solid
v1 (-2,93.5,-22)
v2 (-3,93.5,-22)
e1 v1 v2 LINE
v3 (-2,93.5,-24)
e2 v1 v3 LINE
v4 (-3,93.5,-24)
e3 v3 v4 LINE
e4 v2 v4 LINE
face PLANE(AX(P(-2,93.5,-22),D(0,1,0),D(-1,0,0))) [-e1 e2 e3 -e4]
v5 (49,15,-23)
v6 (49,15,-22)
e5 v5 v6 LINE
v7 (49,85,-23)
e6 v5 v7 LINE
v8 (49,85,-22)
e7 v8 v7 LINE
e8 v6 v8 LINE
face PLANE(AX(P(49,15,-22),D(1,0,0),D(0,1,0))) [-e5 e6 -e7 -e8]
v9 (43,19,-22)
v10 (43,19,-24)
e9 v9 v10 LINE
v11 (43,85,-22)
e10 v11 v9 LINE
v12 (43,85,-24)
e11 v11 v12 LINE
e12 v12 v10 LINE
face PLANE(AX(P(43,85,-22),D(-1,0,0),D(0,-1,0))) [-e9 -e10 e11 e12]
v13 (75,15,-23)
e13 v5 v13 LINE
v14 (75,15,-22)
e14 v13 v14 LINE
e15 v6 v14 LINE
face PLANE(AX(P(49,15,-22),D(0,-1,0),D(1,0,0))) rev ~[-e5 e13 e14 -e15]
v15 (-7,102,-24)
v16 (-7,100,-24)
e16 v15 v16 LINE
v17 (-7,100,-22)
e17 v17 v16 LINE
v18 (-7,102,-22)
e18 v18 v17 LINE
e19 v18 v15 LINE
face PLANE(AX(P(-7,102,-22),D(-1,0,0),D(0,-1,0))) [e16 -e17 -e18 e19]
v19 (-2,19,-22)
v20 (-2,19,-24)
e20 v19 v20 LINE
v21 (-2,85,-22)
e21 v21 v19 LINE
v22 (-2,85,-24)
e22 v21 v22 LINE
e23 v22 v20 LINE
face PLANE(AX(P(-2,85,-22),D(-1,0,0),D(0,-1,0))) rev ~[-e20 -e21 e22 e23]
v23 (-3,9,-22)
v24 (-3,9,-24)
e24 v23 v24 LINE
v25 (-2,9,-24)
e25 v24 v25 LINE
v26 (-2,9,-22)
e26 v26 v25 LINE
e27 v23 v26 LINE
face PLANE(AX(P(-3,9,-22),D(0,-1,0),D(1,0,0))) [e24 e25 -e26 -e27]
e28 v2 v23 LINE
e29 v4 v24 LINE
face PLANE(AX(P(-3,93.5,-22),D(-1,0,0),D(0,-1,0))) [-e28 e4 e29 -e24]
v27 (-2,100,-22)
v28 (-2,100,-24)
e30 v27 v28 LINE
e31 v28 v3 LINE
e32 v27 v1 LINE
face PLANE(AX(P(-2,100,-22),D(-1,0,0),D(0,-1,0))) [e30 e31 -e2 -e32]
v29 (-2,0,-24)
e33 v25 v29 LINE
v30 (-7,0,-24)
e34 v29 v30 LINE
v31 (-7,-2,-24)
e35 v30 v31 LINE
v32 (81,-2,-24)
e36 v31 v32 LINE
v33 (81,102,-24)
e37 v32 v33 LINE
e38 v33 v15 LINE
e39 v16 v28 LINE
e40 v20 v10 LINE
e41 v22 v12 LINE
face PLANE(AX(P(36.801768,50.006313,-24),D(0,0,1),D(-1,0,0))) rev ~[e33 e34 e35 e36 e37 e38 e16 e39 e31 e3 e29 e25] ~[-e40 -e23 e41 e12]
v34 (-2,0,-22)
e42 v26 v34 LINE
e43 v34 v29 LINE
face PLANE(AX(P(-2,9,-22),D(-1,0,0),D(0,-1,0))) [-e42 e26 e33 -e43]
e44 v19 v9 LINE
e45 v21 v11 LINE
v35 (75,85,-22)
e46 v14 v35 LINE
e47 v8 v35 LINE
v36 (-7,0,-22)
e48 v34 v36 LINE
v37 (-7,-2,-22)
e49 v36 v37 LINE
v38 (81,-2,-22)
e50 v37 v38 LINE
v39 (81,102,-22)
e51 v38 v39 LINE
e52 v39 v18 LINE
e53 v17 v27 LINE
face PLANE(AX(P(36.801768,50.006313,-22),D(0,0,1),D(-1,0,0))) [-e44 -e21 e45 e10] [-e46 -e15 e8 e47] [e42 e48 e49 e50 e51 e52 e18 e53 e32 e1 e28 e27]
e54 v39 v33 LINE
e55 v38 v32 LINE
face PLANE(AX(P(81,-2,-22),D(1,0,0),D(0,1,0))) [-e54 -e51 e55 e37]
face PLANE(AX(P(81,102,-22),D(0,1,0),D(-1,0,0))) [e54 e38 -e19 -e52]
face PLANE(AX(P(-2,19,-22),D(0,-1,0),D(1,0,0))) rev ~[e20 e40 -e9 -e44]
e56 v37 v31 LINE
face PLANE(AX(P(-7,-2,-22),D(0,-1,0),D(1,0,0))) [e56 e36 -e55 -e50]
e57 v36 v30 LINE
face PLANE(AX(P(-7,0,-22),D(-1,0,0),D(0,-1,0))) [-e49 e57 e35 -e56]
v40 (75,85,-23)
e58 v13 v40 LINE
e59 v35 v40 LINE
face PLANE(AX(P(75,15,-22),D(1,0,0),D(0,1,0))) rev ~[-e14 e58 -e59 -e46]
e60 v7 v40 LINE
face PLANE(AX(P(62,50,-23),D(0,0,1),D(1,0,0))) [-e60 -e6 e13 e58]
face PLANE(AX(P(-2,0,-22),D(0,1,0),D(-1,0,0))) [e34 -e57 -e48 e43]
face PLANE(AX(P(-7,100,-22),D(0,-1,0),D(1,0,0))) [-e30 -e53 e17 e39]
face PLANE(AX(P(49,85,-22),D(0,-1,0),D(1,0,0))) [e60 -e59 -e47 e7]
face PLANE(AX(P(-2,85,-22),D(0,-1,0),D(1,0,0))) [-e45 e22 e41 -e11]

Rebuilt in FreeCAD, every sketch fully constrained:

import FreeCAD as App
import Part
import Sketcher
from FreeCAD import Vector


def add_polygon(sketch, points):
    """Adds a closed chain of lines whose ends are joined by coincident constraints."""
    first, n = sketch.GeometryCount, len(points)
    for a, b in zip(points, points[1:] + points[:1]):
        sketch.addGeometry(Part.LineSegment(App.Vector(*a, 0), App.Vector(*b, 0)), False)
    for i in range(n):
        sketch.addConstraint(Sketcher.Constraint("Coincident", first + i, 2, first + (i + 1) % n, 1))

doc = App.newDocument("Part")
params = doc.addObject("Spreadsheet::Sheet", "Params")
for row, (alias, value) in enumerate([
    ("sketch1_width", "26 mm"),
    ("sketch1_height", "70 mm"),
    ("pad1_length", "2 mm"),
    ("sketch2_width", "88 mm"),
    ("sketch2_width2", "5 mm"),
    ("sketch2_width3", "1 mm"),
    ("sketch2_width4", "45 mm"),
    ("sketch2_height", "2 mm"),
    ("pad2_length", "2 mm"),
], start=1):
    params.set(f"A{row}", alias)
    params.set(f"B{row}", "=" + value)
    params.setAlias(f"B{row}", alias)

body = doc.addObject("PartDesign::Body", "Body")

sketch1 = doc.addObject("Sketcher::SketchObject", "Sketch")
body.addObject(sketch1)
sketch1.AttachmentSupport = (doc.XY_Plane, [""])
sketch1.MapMode = "FlatFace"
sketch1.AttachmentOffset = App.Placement(Vector(0, 0, -22), App.Rotation())
add_polygon(sketch1, [(49, 85), (49, 15), (75, 15), (75, 85)])
sketch1.addConstraint(Sketcher.Constraint("Vertical", 0))
sketch1.addConstraint(Sketcher.Constraint("Horizontal", 1))
sketch1.addConstraint(Sketcher.Constraint("Vertical", 2))
sketch1.addConstraint(Sketcher.Constraint("Horizontal", 3))
sketch1.addConstraint(Sketcher.Constraint("DistanceX", 1, 1, 1, 2, 26.0))
sketch1.addConstraint(Sketcher.Constraint("DistanceY", 0, 2, 0, 1, 70.0))
sketch1.addConstraint(Sketcher.Constraint("DistanceX", -1, 1, 0, 2, 49.0))
sketch1.addConstraint(Sketcher.Constraint("DistanceY", -1, 1, 0, 2, 15.0))
sketch1.setExpression("Constraints[8]", "Params.sketch1_width")
sketch1.setExpression("Constraints[9]", "Params.sketch1_height")
pad1 = doc.addObject("PartDesign::Pad", "Pad")
body.addObject(pad1)
pad1.Profile = sketch1
pad1.setExpression("Length", "Params.pad1_length")
pad1.Midplane = True
body2 = doc.addObject("PartDesign::Body", "Body001")

sketch2 = doc.addObject("Sketcher::SketchObject", "Sketch001")
body2.addObject(sketch2)
sketch2.AttachmentSupport = (doc.getObject("XY_Plane001"), [""])
sketch2.MapMode = "FlatFace"
sketch2.AttachmentOffset = App.Placement(Vector(0, 0, -22), App.Rotation())
add_polygon(sketch2, [(81, -2), (-7, -2), (-7, 0), (-2, 0), (-2, 9), (-3, 9), (-3, 93.5), (-2, 93.5), (-2, 100), (-7, 100), (-7, 102), (81, 102)])
add_polygon(sketch2, [(-2, 85), (-2, 19), (43, 19), (43, 85)])
sketch2.addConstraint(Sketcher.Constraint("Horizontal", 0))
sketch2.addConstraint(Sketcher.Constraint("Vertical", 1))
sketch2.addConstraint(Sketcher.Constraint("Horizontal", 2))
sketch2.addConstraint(Sketcher.Constraint("Vertical", 3))
sketch2.addConstraint(Sketcher.Constraint("Horizontal", 4))
sketch2.addConstraint(Sketcher.Constraint("Vertical", 5))
sketch2.addConstraint(Sketcher.Constraint("Horizontal", 6))
sketch2.addConstraint(Sketcher.Constraint("Vertical", 7))
sketch2.addConstraint(Sketcher.Constraint("Horizontal", 8))
sketch2.addConstraint(Sketcher.Constraint("Vertical", 9))
sketch2.addConstraint(Sketcher.Constraint("Horizontal", 10))
sketch2.addConstraint(Sketcher.Constraint("Vertical", 11))
sketch2.addConstraint(Sketcher.Constraint("Vertical", 12))
sketch2.addConstraint(Sketcher.Constraint("Horizontal", 13))
sketch2.addConstraint(Sketcher.Constraint("Vertical", 14))
sketch2.addConstraint(Sketcher.Constraint("Horizontal", 15))
sketch2.addConstraint(Sketcher.Constraint("PointOnObject", 1, 2, -1))
sketch2.addConstraint(Sketcher.Constraint("Vertical", 3, 2, 6, 2))
sketch2.addConstraint(Sketcher.Constraint("Vertical", 1, 2, 8, 2))
sketch2.addConstraint(Sketcher.Constraint("Vertical", 7, 2, 12, 2))
sketch2.addConstraint(Sketcher.Constraint("Equal", 1, 9))
sketch2.addConstraint(Sketcher.Constraint("DistanceX", 0, 2, 0, 1, 88.0))
sketch2.addConstraint(Sketcher.Constraint("DistanceX", 2, 1, 2, 2, 5.0))
sketch2.addConstraint(Sketcher.Constraint("DistanceX", 4, 2, 4, 1, 1.0))
sketch2.addConstraint(Sketcher.Constraint("DistanceX", 13, 1, 13, 2, 45.0))
sketch2.addConstraint(Sketcher.Constraint("DistanceY", 1, 1, 1, 2, 2.0))
sketch2.addConstraint(Sketcher.Constraint("DistanceY", 3, 1, 3, 2, 9.0))
sketch2.addConstraint(Sketcher.Constraint("DistanceY", 11, 2, 11, 1, 104.0))
sketch2.addConstraint(Sketcher.Constraint("DistanceY", 12, 2, 12, 1, 66.0))
sketch2.addConstraint(Sketcher.Constraint("DistanceY", 5, 1, 5, 2, 84.5))
sketch2.addConstraint(Sketcher.Constraint("DistanceX", 0, 2, -1, 1, 7.0))
sketch2.addConstraint(Sketcher.Constraint("DistanceY", -1, 1, 12, 2, 19.0))
sketch2.setExpression("Constraints[37]", "Params.sketch2_width")
sketch2.setExpression("Constraints[38]", "Params.sketch2_width2")
sketch2.setExpression("Constraints[39]", "Params.sketch2_width3")
sketch2.setExpression("Constraints[40]", "Params.sketch2_width4")
sketch2.setExpression("Constraints[41]", "Params.sketch2_height")
pad2 = doc.addObject("PartDesign::Pad", "Pad001")
body2.addObject(pad2)
pad2.Profile = sketch2
pad2.setExpression("Length", "Params.pad2_length")
pad2.Reversed = True
doc.recompute()

boolean = doc.addObject("PartDesign::Boolean", "Boolean")
body2.addObject(boolean)
boolean.Type = "Cut"
boolean.addObjects([body])

doc.recompute()
